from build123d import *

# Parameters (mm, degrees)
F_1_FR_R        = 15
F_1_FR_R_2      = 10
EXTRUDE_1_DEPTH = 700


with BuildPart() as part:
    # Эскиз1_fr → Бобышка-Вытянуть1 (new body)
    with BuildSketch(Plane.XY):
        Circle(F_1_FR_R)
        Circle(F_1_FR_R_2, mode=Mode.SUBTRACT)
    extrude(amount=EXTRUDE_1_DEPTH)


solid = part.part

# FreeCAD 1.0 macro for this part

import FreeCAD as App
import Part
import Sketcher
Q = App.Units.Quantity

doc = App.newDocument("Part")
body = doc.addObject("PartDesign::Body", "Body")

# Sketch on XY plane
sketch1 = doc.addObject("Sketcher::SketchObject", "Sketch")
body.addObject(sketch1)
sketch1.AttachmentSupport = (doc.XY_Plane, [""])
sketch1.MapMode = "FlatFace"
sketch1.addGeometry([
    Part.Circle(App.Vector(0, 0, 0), App.Vector(0, 0, 1), 15),
    Part.Circle(App.Vector(0, 0, 0), App.Vector(0, 0, 1), 10),
], False)
sketch1.addConstraint([
    Sketcher.Constraint("Coincident", 0, 3, -1, 1),
    Sketcher.Constraint("Coincident", 1, 3, -1, 1),
    Sketcher.Constraint("Diameter", 0, Q("30 mm")),
    Sketcher.Constraint("Diameter", 1, Q("20 mm")),
])
pad1 = doc.addObject("PartDesign::Pad", "Pad")
body.addObject(pad1)
pad1.Profile = sketch1
pad1.Length = 700

doc.recompute()
